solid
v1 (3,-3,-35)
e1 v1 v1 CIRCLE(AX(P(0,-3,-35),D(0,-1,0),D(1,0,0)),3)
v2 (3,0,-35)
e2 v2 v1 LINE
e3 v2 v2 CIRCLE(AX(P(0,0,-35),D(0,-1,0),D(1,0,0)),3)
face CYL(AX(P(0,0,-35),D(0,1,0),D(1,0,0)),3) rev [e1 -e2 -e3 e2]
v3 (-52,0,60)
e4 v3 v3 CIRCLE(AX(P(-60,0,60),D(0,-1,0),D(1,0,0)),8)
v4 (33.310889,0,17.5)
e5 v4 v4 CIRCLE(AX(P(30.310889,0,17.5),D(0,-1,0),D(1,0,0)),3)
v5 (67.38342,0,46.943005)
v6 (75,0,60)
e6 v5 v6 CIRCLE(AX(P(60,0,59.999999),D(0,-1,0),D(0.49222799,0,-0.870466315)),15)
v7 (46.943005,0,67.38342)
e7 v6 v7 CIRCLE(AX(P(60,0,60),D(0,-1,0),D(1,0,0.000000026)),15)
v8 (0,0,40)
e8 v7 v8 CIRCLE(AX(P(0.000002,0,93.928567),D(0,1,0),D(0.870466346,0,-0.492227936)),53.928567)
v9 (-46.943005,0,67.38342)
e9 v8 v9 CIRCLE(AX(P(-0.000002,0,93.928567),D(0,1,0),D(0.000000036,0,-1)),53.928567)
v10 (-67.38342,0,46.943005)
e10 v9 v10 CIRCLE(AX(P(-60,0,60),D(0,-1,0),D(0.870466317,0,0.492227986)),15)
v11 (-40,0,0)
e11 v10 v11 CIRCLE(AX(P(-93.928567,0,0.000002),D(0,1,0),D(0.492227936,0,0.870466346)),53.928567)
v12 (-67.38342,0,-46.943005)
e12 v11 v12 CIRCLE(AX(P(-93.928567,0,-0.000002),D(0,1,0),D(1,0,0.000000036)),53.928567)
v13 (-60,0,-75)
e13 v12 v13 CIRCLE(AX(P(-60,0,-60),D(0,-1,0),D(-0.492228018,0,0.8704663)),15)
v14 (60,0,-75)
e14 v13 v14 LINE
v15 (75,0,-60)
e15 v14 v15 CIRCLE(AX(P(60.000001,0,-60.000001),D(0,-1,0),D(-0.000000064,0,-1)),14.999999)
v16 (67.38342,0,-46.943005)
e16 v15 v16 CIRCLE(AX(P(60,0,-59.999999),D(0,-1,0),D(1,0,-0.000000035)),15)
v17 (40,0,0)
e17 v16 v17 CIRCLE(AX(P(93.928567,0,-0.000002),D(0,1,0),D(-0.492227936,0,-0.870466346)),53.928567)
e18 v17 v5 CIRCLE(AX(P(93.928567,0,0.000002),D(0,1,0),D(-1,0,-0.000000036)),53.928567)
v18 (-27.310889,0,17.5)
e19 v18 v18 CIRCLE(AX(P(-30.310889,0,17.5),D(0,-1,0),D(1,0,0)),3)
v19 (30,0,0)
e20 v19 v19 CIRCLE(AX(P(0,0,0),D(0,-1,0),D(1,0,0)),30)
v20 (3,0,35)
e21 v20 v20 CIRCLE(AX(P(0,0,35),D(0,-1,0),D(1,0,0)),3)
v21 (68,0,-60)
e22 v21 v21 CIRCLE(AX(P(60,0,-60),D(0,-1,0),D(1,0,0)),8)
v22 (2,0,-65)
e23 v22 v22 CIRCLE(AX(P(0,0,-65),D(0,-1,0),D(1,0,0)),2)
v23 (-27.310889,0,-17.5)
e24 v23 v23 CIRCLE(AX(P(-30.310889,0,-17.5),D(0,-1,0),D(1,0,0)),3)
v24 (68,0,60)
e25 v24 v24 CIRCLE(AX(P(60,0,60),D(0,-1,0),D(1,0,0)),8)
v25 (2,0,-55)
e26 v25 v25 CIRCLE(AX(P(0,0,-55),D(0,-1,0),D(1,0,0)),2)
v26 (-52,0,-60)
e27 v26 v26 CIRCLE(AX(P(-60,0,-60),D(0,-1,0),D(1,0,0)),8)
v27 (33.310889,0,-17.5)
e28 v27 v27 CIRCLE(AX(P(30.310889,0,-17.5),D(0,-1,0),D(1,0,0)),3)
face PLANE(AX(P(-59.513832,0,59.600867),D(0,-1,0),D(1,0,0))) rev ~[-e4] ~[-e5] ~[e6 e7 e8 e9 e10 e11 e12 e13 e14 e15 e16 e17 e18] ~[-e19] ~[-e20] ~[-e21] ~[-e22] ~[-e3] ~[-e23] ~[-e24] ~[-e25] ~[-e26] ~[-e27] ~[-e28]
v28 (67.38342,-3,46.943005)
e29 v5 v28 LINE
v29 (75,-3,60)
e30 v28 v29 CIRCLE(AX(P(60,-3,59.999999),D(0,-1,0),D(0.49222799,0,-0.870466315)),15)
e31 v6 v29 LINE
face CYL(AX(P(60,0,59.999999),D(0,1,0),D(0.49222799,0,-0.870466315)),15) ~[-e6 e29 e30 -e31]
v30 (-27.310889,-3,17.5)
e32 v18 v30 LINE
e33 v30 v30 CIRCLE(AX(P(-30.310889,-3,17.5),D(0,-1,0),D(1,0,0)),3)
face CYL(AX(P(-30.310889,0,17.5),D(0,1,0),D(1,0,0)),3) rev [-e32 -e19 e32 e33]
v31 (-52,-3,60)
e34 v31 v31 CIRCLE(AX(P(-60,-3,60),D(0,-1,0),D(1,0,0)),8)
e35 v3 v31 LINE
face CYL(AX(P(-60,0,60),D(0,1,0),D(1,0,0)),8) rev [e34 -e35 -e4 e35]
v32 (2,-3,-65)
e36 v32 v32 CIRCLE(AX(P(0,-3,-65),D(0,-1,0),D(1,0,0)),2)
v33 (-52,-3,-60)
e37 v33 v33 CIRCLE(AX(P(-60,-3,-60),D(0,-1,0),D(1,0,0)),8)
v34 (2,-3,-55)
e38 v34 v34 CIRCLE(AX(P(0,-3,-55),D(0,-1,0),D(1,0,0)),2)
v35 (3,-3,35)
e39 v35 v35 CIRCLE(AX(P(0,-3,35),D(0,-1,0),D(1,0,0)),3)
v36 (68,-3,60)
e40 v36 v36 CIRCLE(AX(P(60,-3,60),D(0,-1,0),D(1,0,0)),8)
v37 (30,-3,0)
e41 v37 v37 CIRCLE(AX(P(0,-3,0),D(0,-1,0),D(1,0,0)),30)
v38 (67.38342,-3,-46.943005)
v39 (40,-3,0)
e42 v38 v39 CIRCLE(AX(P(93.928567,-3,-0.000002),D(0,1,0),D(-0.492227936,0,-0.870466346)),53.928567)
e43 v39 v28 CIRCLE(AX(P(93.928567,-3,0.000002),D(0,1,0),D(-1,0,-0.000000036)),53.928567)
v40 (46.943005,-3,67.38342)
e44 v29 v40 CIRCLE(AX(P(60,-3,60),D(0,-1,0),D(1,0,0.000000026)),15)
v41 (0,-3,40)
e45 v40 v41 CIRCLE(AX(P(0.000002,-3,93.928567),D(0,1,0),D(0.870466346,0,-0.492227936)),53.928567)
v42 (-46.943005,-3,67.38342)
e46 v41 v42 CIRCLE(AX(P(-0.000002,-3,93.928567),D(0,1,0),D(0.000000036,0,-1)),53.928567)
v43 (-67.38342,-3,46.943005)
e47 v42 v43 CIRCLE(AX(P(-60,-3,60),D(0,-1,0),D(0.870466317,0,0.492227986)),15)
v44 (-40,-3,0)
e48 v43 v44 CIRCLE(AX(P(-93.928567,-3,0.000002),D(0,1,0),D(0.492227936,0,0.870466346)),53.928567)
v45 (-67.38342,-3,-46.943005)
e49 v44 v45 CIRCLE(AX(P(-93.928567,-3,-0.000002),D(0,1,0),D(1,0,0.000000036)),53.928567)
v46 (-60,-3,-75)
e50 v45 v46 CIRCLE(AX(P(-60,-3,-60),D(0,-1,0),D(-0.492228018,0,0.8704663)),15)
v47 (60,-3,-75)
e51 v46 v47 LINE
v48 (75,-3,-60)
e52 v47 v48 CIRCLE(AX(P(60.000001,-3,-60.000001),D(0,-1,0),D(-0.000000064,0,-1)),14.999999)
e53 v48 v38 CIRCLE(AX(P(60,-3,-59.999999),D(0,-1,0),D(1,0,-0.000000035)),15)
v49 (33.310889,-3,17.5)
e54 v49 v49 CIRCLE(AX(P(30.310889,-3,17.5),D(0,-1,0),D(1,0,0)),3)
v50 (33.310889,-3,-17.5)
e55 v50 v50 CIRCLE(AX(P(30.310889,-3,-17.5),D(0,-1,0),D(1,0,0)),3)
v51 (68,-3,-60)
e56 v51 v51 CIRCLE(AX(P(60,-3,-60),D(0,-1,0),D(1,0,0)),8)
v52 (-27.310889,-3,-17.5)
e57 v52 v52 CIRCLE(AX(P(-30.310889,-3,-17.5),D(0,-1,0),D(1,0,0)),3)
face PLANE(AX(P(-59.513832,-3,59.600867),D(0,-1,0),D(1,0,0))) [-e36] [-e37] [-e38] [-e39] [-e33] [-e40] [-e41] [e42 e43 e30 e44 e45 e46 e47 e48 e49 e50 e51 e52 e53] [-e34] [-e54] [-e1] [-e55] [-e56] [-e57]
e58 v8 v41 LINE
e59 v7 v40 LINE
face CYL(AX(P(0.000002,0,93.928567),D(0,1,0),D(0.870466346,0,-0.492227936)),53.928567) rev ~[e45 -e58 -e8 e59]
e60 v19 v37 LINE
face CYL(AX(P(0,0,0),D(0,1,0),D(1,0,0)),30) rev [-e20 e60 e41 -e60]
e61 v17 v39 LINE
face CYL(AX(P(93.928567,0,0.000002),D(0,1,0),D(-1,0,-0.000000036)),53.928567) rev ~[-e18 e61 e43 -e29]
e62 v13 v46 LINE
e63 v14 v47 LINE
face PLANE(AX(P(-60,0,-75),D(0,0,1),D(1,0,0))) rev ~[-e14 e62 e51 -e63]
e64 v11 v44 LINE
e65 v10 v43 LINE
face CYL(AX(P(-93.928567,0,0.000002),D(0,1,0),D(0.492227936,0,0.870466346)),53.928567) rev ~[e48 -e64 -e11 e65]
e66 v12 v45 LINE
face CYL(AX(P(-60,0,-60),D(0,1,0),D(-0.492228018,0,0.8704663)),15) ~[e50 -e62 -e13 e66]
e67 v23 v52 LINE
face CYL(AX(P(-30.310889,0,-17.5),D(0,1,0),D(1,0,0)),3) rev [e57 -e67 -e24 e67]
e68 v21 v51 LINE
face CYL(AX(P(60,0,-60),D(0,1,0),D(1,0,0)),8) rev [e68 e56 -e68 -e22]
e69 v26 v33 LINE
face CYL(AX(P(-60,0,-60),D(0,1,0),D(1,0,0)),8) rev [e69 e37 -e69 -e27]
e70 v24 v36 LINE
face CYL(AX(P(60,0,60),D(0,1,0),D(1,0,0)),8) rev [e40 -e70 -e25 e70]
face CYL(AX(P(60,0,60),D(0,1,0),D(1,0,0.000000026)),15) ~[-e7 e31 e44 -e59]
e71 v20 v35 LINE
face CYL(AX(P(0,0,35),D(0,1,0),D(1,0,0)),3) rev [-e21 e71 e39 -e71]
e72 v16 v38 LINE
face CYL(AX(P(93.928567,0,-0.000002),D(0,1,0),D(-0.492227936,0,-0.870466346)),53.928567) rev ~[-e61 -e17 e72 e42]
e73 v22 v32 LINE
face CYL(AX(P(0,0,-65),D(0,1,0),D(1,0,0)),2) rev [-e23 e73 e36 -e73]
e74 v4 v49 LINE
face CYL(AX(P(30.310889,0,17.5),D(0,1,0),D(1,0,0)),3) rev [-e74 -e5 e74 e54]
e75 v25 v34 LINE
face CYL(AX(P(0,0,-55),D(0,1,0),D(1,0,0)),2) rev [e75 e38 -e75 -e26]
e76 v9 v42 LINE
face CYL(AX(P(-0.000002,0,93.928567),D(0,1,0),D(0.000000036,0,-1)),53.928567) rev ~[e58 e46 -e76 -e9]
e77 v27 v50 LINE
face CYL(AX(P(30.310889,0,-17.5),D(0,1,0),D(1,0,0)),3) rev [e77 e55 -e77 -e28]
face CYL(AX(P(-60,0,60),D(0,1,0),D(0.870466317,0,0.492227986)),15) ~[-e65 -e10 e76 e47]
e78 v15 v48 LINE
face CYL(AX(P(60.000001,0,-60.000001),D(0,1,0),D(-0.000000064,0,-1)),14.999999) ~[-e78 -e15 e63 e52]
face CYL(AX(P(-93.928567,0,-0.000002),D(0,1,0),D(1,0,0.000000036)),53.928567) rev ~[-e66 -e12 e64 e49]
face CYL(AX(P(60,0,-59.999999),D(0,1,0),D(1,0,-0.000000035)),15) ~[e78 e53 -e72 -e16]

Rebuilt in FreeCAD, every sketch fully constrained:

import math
import FreeCAD as App
import Part
import Sketcher
from FreeCAD import Vector

doc = App.newDocument("Part")
body = doc.addObject("PartDesign::Body", "Body")

# Sketch on XZ plane
sketch1 = body.newObject("Sketcher::SketchObject", "Sketch")
sketch1.AttachmentSupport = (doc.getObject("XZ_Plane"), [""])
sketch1.MapMode = "FlatFace"
sketch1.addGeometry(Part.ArcOfCircle(Part.Circle(Vector(-60, 60, 0), Vector(0, 0, 1), 15), math.radians(29.487126), math.radians(240.512874)), False)
sketch1.addGeometry(Part.ArcOfCircle(Part.Circle(Vector(-93.928567, 0.000002, 0), Vector(0, 0, 1), 53.928567), math.radians(-0.000002), math.radians(60.512877)), False)
sketch1.addGeometry(Part.ArcOfCircle(Part.Circle(Vector(-93.928567, -0.000002, 0), Vector(0, 0, 1), 53.928567), math.radians(-60.512877), math.radians(0.000002)), False)
sketch1.addGeometry(Part.ArcOfCircle(Part.Circle(Vector(-60, -60, 0), Vector(0, 0, 1), 15), math.radians(119.487128), math.radians(269.999998)), False)
sketch1.addGeometry(Part.LineSegment(Vector(-60, -75, 0), Vector(60, -75, 0)), False)
sketch1.addGeometry(Part.ArcOfCircle(Part.Circle(Vector(60.000001, -60.000001, 0), Vector(0, 0, 1), 14.999999), math.radians(-90.000004), math.radians(0.000004)), False)
sketch1.addGeometry(Part.ArcOfCircle(Part.Circle(Vector(60, -59.999999, 0), Vector(0, 0, 1), 15), math.radians(-0.000002), math.radians(60.512874)), False)
sketch1.addGeometry(Part.ArcOfCircle(Part.Circle(Vector(93.928567, -0.000002, 0), Vector(0, 0, 1), 53.928567), math.radians(179.999998), math.radians(240.512877)), False)
sketch1.addGeometry(Part.ArcOfCircle(Part.Circle(Vector(93.928567, 0.000002, 0), Vector(0, 0, 1), 53.928567), math.radians(119.487123), math.radians(180.000002)), False)
sketch1.addGeometry(Part.ArcOfCircle(Part.Circle(Vector(60, 59.999999, 0), Vector(0, 0, 1), 15), math.radians(-60.512874), math.radians(0.000002)), False)
sketch1.addGeometry(Part.ArcOfCircle(Part.Circle(Vector(60, 60, 0), Vector(0, 0, 1), 15), math.radians(0.000002), math.radians(150.512872)), False)
sketch1.addGeometry(Part.ArcOfCircle(Part.Circle(Vector(0.000002, 93.928567, 0), Vector(0, 0, 1), 53.928567), math.radians(-90.000002), math.radians(-29.487123)), False)
sketch1.addGeometry(Part.ArcOfCircle(Part.Circle(Vector(-0.000002, 93.928567, 0), Vector(0, 0, 1), 53.928567), math.radians(-150.512877), math.radians(-89.999998)), False)
sketch1.addGeometry(Part.Circle(Vector(-60, -60, 0), Vector(0, 0, 1), 8), False)
sketch1.addGeometry(Part.Circle(Vector(-30.310889, -17.5, 0), Vector(0, 0, 1), 3), False)
sketch1.addGeometry(Part.Circle(Vector(0, -65, 0), Vector(0, 0, 1), 2), False)
sketch1.addGeometry(Part.Circle(Vector(0, -55, 0), Vector(0, 0, 1), 2), False)
sketch1.addGeometry(Part.Circle(Vector(0, -35, 0), Vector(0, 0, 1), 3), False)
sketch1.addGeometry(Part.Circle(Vector(60, -60, 0), Vector(0, 0, 1), 8), False)
sketch1.addGeometry(Part.Circle(Vector(30.310889, -17.5, 0), Vector(0, 0, 1), 3), False)
sketch1.addGeometry(Part.Circle(Vector(-30.310889, 17.5, 0), Vector(0, 0, 1), 3), False)
sketch1.addGeometry(Part.Circle(Vector(-60, 60, 0), Vector(0, 0, 1), 8), False)
sketch1.addGeometry(Part.Circle(Vector(0, 0, 0), Vector(0, 0, 1), 30), False)
sketch1.addGeometry(Part.Circle(Vector(30.310889, 17.5, 0), Vector(0, 0, 1), 3), False)
sketch1.addGeometry(Part.Circle(Vector(0, 35, 0), Vector(0, 0, 1), 3), False)
sketch1.addGeometry(Part.Circle(Vector(60, 60, 0), Vector(0, 0, 1), 8), False)
sketch1.addConstraint(Sketcher.Constraint("Tangent", 0, 2, 1, 2))
sketch1.addConstraint(Sketcher.Constraint("Tangent", 1, 1, 2, 2))
sketch1.addConstraint(Sketcher.Constraint("Tangent", 2, 1, 3, 1))
sketch1.addConstraint(Sketcher.Constraint("Tangent", 3, 2, 4, 1))
sketch1.addConstraint(Sketcher.Constraint("Tangent", 4, 2, 5, 1))
sketch1.addConstraint(Sketcher.Constraint("Tangent", 5, 2, 6, 1))
sketch1.addConstraint(Sketcher.Constraint("Tangent", 6, 2, 7, 2))
sketch1.addConstraint(Sketcher.Constraint("Tangent", 7, 1, 8, 2))
sketch1.addConstraint(Sketcher.Constraint("Tangent", 8, 1, 9, 1))
sketch1.addConstraint(Sketcher.Constraint("Tangent", 9, 2, 10, 1))
sketch1.addConstraint(Sketcher.Constraint("Tangent", 10, 2, 11, 2))
sketch1.addConstraint(Sketcher.Constraint("Tangent", 11, 1, 12, 2))
sketch1.addConstraint(Sketcher.Constraint("Tangent", 12, 1, 0, 1))
sketch1.addConstraint(Sketcher.Constraint("Horizontal", 4))
sketch1.addConstraint(Sketcher.Constraint("Coincident", 22, 3, -1, 1))
sketch1.addConstraint(Sketcher.Constraint("Coincident", 13, 3, 3, 3))
sketch1.addConstraint(Sketcher.Constraint("Coincident", 18, 3, 5, 3))
sketch1.addConstraint(Sketcher.Constraint("Coincident", 21, 3, 0, 3))
sketch1.addConstraint(Sketcher.Constraint("Coincident", 25, 3, 9, 3))
sketch1.addConstraint(Sketcher.Constraint("Equal", 1, 2))
sketch1.addConstraint(Sketcher.Constraint("Equal", 0, 3))
sketch1.addConstraint(Sketcher.Constraint("Equal", 3, 5))
sketch1.addConstraint(Sketcher.Constraint("Equal", 5, 6))
sketch1.addConstraint(Sketcher.Constraint("Equal", 2, 7))
sketch1.addConstraint(Sketcher.Constraint("Equal", 7, 8))
sketch1.addConstraint(Sketcher.Constraint("Equal", 6, 9))
sketch1.addConstraint(Sketcher.Constraint("Equal", 9, 10))
sketch1.addConstraint(Sketcher.Constraint("Equal", 8, 11))
sketch1.addConstraint(Sketcher.Constraint("Equal", 11, 12))
sketch1.addConstraint(Sketcher.Constraint("Equal", 15, 16))
sketch1.addConstraint(Sketcher.Constraint("Equal", 14, 17))
sketch1.addConstraint(Sketcher.Constraint("Equal", 13, 18))
sketch1.addConstraint(Sketcher.Constraint("Equal", 17, 19))
sketch1.addConstraint(Sketcher.Constraint("Equal", 19, 20))
sketch1.addConstraint(Sketcher.Constraint("Equal", 18, 21))
sketch1.addConstraint(Sketcher.Constraint("Equal", 20, 23))
sketch1.addConstraint(Sketcher.Constraint("Equal", 23, 24))
sketch1.addConstraint(Sketcher.Constraint("Equal", 21, 25))
sketch1.addConstraint(Sketcher.Constraint("Symmetric", 0, 3, 5, 3, -1, 1))
sketch1.addConstraint(Sketcher.Constraint("Symmetric", 3, 3, 9, 3, -1, 1))
sketch1.addConstraint(Sketcher.Constraint("Symmetric", 19, 3, 20, 3, -1, 1))
sketch1.addConstraint(Sketcher.Constraint("Symmetric", 14, 3, 23, 3, -1, 1))
sketch1.addConstraint(Sketcher.Constraint("Symmetric", 17, 3, 24, 3, -1, 1))
sketch1.addConstraint(Sketcher.Constraint("Symmetric", 14, 3, 19, 3, -2))
sketch1.addConstraint(Sketcher.Constraint("Symmetric", 5, 2, 9, 2, -1))
sketch1.addConstraint(Sketcher.Constraint("PointOnObject", 15, 3, -2))
sketch1.addConstraint(Sketcher.Constraint("PointOnObject", 16, 3, -2))
sketch1.addConstraint(Sketcher.Constraint("PointOnObject", 17, 3, -2))
sketch1.addConstraint(Sketcher.Constraint("PointOnObject", 1, 1, -1))
sketch1.addConstraint(Sketcher.Constraint("PointOnObject", 7, 1, -1))
sketch1.addConstraint(Sketcher.Constraint("PointOnObject", 11, 1, -2))
sketch1.addConstraint(Sketcher.Constraint("Horizontal", 18, 3, 5, 2))
sketch1.addConstraint(Sketcher.Constraint("Diameter", 13, 16.0))
sketch1.addConstraint(Sketcher.Constraint("Diameter", 14, 6.0))
sketch1.addConstraint(Sketcher.Constraint("Diameter", 15, 4.0))
sketch1.addConstraint(Sketcher.Constraint("Diameter", 22, 60.0))
sketch1.addConstraint(Sketcher.Constraint("Radius", 0, 15.0))
sketch1.addConstraint(Sketcher.Constraint("DistanceX", 4, 1, 4, 2, 120.0))
sketch1.addConstraint(Sketcher.Constraint("DistanceY", -1, 1, 0, 3, 60.0))
sketch1.addConstraint(Sketcher.Constraint("DistanceY", 15, 3, -1, 1, 65.0))
sketch1.addConstraint(Sketcher.Constraint("DistanceY", 16, 3, -1, 1, 55.0))
sketch1.addConstraint(Sketcher.Constraint("DistanceY", 17, 3, -1, 1, 35.0))
sketch1.addConstraint(Sketcher.Constraint("DistanceX", 1, 1, -1, 1, 40.0))
sketch1.addConstraint(Sketcher.Constraint("DistanceY", 14, 3, 20, 3, 35.0))
sketch1.addConstraint(Sketcher.Constraint("DistanceX", 14, 3, -1, 1, 30.310889))
pad1 = body.newObject("PartDesign::Pad", "Pad")
pad1.Profile = sketch1
pad1.Length = 3

doc.recompute()
